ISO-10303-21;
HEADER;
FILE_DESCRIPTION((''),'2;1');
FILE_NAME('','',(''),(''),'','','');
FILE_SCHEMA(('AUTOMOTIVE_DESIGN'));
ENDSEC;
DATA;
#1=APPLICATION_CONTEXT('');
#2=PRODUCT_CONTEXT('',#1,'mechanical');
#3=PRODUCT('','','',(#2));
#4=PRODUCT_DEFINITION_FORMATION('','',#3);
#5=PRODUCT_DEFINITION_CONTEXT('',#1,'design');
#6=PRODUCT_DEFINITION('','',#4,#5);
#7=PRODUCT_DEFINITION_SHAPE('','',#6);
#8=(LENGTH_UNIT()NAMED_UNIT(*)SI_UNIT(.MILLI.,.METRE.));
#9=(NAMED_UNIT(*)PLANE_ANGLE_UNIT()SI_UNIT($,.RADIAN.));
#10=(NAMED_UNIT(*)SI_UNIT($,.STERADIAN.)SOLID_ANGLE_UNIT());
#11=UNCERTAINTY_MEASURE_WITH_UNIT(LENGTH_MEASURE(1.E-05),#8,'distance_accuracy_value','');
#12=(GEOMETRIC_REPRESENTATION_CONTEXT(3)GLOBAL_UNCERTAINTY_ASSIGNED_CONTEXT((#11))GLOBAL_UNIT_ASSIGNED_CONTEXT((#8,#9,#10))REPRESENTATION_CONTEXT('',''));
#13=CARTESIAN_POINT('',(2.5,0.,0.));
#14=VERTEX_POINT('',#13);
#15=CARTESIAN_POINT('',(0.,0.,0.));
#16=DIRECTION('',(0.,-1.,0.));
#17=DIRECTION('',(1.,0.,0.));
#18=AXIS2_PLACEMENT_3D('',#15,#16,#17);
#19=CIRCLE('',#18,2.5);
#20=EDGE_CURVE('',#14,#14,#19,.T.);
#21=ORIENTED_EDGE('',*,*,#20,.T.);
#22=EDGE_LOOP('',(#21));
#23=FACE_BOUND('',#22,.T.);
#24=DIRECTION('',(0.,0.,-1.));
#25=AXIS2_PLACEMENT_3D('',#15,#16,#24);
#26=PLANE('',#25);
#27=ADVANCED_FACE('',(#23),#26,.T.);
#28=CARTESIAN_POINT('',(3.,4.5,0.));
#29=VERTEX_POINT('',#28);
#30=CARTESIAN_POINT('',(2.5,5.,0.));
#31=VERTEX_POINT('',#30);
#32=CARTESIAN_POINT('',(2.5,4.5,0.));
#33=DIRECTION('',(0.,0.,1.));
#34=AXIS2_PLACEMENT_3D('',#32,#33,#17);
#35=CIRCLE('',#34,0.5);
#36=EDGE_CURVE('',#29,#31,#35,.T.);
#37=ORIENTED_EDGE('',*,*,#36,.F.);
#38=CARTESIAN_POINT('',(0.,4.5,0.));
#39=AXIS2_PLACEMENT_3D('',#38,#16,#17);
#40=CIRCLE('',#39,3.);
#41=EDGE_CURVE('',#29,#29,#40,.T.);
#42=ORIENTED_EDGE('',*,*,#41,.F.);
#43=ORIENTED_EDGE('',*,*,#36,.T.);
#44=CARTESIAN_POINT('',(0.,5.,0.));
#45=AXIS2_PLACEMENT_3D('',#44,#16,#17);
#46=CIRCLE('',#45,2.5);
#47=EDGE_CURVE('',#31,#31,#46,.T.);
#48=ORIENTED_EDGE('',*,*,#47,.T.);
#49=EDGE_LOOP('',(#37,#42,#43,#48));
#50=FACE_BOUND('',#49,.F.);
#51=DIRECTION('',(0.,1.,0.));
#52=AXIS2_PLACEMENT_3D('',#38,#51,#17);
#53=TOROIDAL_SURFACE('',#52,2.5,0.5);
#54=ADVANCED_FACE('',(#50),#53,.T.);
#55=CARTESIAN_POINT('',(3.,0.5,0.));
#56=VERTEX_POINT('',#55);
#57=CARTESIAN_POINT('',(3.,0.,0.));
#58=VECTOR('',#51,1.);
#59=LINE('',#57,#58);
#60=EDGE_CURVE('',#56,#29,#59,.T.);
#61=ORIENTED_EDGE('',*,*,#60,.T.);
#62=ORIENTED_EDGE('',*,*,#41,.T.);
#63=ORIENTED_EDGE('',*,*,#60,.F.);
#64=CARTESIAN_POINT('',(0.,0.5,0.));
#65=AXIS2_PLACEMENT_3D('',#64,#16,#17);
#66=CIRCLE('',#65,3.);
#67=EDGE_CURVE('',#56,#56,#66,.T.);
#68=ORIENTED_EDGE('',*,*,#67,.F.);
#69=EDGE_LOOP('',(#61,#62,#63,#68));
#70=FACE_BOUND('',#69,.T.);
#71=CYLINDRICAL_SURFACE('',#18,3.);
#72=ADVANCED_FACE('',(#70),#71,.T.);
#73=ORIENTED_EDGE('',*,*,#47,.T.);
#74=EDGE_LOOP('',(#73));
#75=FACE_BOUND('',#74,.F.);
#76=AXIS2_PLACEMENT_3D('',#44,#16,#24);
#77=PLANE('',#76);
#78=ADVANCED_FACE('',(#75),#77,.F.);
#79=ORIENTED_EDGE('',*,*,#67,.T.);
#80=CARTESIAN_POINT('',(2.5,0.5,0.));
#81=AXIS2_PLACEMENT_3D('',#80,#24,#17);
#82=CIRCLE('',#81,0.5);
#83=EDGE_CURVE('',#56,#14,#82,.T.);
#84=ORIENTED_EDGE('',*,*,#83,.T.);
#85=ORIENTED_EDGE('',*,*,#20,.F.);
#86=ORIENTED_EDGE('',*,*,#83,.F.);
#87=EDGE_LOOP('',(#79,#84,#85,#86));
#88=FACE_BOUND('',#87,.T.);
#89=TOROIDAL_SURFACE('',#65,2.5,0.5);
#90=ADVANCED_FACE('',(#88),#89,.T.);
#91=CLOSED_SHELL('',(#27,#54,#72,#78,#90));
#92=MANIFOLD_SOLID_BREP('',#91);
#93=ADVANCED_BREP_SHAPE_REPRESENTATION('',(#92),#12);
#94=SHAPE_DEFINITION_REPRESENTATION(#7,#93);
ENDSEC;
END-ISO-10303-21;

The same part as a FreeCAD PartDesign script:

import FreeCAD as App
import Part
import Sketcher

V = App.Vector
Q = App.Units.Quantity


def edges_at(feature, points):
    """Names of the edges that pass closest to the given points."""
    edges = feature.Shape.Edges
    near = lambda p: min(range(len(edges)), key=lambda i: edges[i].distToShape(Part.Vertex(*p))[0])
    return sorted({f"Edge{near(p) + 1}" for p in points})

doc = App.newDocument("Part")
body = doc.addObject("PartDesign::Body", "Body")

# Sketch on XZ plane
sketch1 = doc.addObject("Sketcher::SketchObject", "Sketch")
body.addObject(sketch1)
sketch1.AttachmentSupport = (doc.XZ_Plane, [""])
sketch1.MapMode = "FlatFace"
sketch1.addGeometry(Part.Circle(V(0, 0, 0), V(0, 0, 1), 3), False)
sketch1.addConstraint(Sketcher.Constraint("Coincident", 0, 3, -1, 1))
sketch1.addConstraint(Sketcher.Constraint("Diameter", 0, Q("6 mm")))
pad1 = doc.addObject("PartDesign::Pad", "Pad")
body.addObject(pad1)
pad1.Profile = sketch1
pad1.Length = 5
pad1.Reversed = True
doc.recompute()

fillet = doc.addObject("PartDesign::Fillet", "Fillet")
body.addObject(fillet)
fillet.Base = (pad1, edges_at(pad1, [(-3, 0, 0), (-3, 5, 0)]))
fillet.Radius = 0.5

doc.recompute()
